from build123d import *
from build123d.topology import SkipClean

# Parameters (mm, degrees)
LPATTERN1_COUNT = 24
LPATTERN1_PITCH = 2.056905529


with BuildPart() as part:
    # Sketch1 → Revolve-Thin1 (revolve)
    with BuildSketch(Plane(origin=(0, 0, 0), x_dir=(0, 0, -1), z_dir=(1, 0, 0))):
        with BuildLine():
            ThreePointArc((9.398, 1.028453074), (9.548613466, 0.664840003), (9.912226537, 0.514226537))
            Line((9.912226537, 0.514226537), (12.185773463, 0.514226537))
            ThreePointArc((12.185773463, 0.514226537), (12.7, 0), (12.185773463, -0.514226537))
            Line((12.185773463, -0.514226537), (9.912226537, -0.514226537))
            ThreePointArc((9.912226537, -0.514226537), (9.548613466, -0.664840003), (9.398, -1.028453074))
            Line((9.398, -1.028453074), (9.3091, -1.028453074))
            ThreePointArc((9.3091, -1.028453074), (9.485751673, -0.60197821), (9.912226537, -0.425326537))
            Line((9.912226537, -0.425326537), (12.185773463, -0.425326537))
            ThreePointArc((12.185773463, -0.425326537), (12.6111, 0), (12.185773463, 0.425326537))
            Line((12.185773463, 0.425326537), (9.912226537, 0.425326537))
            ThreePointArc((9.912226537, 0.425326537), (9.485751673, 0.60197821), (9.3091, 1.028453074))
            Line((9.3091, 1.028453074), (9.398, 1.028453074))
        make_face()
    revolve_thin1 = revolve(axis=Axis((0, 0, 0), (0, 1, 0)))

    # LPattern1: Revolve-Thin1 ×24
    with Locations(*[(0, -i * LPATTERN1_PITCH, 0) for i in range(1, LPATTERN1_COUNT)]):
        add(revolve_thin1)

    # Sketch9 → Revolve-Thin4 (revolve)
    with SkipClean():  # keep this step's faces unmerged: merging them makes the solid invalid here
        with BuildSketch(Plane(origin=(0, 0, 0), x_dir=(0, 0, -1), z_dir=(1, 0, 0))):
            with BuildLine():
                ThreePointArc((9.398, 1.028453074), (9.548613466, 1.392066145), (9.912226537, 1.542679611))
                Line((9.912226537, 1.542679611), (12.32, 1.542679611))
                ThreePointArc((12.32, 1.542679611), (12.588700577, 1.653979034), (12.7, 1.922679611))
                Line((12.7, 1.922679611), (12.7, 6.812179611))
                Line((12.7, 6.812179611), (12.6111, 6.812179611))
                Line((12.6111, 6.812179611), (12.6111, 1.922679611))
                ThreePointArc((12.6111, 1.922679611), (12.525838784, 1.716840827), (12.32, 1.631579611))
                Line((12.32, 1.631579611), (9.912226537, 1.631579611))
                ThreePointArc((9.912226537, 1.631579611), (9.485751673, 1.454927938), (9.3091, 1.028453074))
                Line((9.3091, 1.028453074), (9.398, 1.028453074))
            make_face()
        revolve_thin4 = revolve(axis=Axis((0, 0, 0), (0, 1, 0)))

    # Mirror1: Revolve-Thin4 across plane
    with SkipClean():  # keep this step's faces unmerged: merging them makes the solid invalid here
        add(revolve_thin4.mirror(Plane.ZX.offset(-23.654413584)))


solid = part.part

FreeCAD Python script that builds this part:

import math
import FreeCAD as App
import Part
import Sketcher

doc = App.newDocument("Part")
params = doc.addObject("Spreadsheet::Sheet", "Params")
for row, (alias, value) in enumerate([
    ("revolution_angle", "360 deg"),
    ("linearpattern_pitch", "2.056906 mm"),
    ("sketch2_radius", "0.38 mm"),
    ("revolution2_angle", "360 deg"),
], start=1):
    params.set(f"A{row}", alias)
    params.set(f"B{row}", "=" + value)
    params.setAlias(f"B{row}", alias)

body = doc.addObject("PartDesign::Body", "Body")

# Sketch on YZ plane
sketch1 = doc.addObject("Sketcher::SketchObject", "Sketch")
body.addObject(sketch1)
sketch1.AttachmentSupport = (doc.YZ_Plane, [""])
sketch1.MapMode = "FlatFace"
sketch1.addGeometry([
    Part.ArcOfCircle(Part.Circle(App.Vector(1.03, -9.91, 0), App.Vector(0, 0, 1), 0.51), math.radians(90), math.radians(180)),  # 0
    Part.LineSegment(App.Vector(1.03, -9.4, 0), App.Vector(1.03, -9.31, 0)),  # 1
    Part.ArcOfCircle(Part.Circle(App.Vector(1.03, -9.91, 0), App.Vector(0, 0, 1), 0.6), math.radians(90), math.radians(180)),  # 2
    Part.LineSegment(App.Vector(0.43, -9.91, 0), App.Vector(0.43, -12.19, 0)),  # 3
    Part.ArcOfCircle(Part.Circle(App.Vector(0, -12.19, 0), App.Vector(0, 0, 1), 0.43), math.radians(180), math.radians(360)),  # 4
    Part.LineSegment(App.Vector(-0.43, -12.19, 0), App.Vector(-0.43, -9.91, 0)),  # 5
    Part.ArcOfCircle(Part.Circle(App.Vector(-1.03, -9.91, 0), App.Vector(0, 0, 1), 0.6), math.radians(0), math.radians(90)),  # 6
    Part.LineSegment(App.Vector(-1.03, -9.31, 0), App.Vector(-1.03, -9.4, 0)),  # 7
    Part.ArcOfCircle(Part.Circle(App.Vector(-1.03, -9.91, 0), App.Vector(0, 0, 1), 0.51), math.radians(0), math.radians(90)),  # 8
    Part.LineSegment(App.Vector(-0.51, -9.91, 0), App.Vector(-0.51, -12.19, 0)),  # 9
    Part.ArcOfCircle(Part.Circle(App.Vector(0, -12.19, 0), App.Vector(0, 0, 1), 0.51), math.radians(180), math.radians(360)),  # 10
    Part.LineSegment(App.Vector(0.51, -12.19, 0), App.Vector(0.51, -9.91, 0)),  # 11
], False)
sketch1.addConstraint([
    Sketcher.Constraint("Coincident", 0, 1, 1, 1),
    Sketcher.Constraint("Coincident", 1, 2, 2, 1),
    Sketcher.Constraint("Tangent", 2, 2, 3, 1),
    Sketcher.Constraint("Tangent", 3, 2, 4, 2),
    Sketcher.Constraint("Tangent", 4, 1, 5, 1),
    Sketcher.Constraint("Tangent", 5, 2, 6, 1),
    Sketcher.Constraint("Coincident", 6, 2, 7, 1),
    Sketcher.Constraint("Coincident", 7, 2, 8, 2),
    Sketcher.Constraint("Tangent", 8, 1, 9, 1),
    Sketcher.Constraint("Tangent", 9, 2, 10, 1),
    Sketcher.Constraint("Tangent", 10, 2, 11, 1),
    Sketcher.Constraint("Tangent", 11, 2, 0, 2),
    Sketcher.Constraint("Vertical", 1),
    Sketcher.Constraint("Vertical", 3),
    Sketcher.Constraint("Vertical", 5),
    Sketcher.Constraint("Vertical", 7),
    Sketcher.Constraint("Vertical", 9),
    Sketcher.Constraint("Vertical", 11),
    Sketcher.Constraint("Coincident", 2, 3, 0, 3),
    Sketcher.Constraint("Coincident", 8, 3, 6, 3),
    Sketcher.Constraint("Coincident", 10, 3, 4, 3),
    Sketcher.Constraint("Equal", 2, 6),
    Sketcher.Constraint("Equal", 8, 10),
    Sketcher.Constraint("Symmetric", 0, 3, 6, 3, -2),
    Sketcher.Constraint("Vertical", 2, 3, 0, 1),
    Sketcher.Constraint("Vertical", 8, 3, 6, 2),
    Sketcher.Constraint("DistanceY", 1, 1, 1, 2, 0.0889),
    Sketcher.Constraint("DistanceY", 0, 1, -1, 1, 9.398),
    Sketcher.Constraint("Radius", 0, 0.514227),
    Sketcher.Constraint("DistanceY", 3, 2, 3, 1, 2.273547),
])
revolution = doc.addObject("PartDesign::Revolution", "Revolution")
body.addObject(revolution)
revolution.Profile = sketch1
revolution.ReferenceAxis = (sketch1, ["H_Axis"])
revolution.setExpression("Angle", "Params.revolution_angle")
doc.recompute()

linearpattern = doc.addObject("PartDesign::LinearPattern", "LinearPattern")
body.addObject(linearpattern)
linearpattern.Originals = [revolution]
linearpattern.Direction = (doc.Y_Axis, [""])
linearpattern.Mode = "offset"
linearpattern.setExpression("Offset", "Params.linearpattern_pitch")
linearpattern.Occurrences = 24
linearpattern.Reversed = True
body.Tip = linearpattern

# Sketch on YZ plane
sketch2 = doc.addObject("Sketcher::SketchObject", "Sketch001")
body.addObject(sketch2)
sketch2.AttachmentSupport = (doc.YZ_Plane, [""])
sketch2.MapMode = "FlatFace"
sketch2.addGeometry([
    Part.ArcOfCircle(Part.Circle(App.Vector(1.03, -9.91, 0), App.Vector(0, 0, 1), 0.51), math.radians(0), math.radians(90)),  # 0
    Part.LineSegment(App.Vector(1.54, -9.91, 0), App.Vector(1.54, -12.32, 0)),  # 1
    Part.ArcOfCircle(Part.Circle(App.Vector(1.92, -12.32, 0), App.Vector(0, 0, 1), 0.38), math.radians(180), math.radians(270)),  # 2
    Part.LineSegment(App.Vector(1.92, -12.7, 0), App.Vector(6.81, -12.7, 0)),  # 3
    Part.LineSegment(App.Vector(6.81, -12.7, 0), App.Vector(6.81, -12.61, 0)),  # 4
    Part.LineSegment(App.Vector(6.81, -12.61, 0), App.Vector(1.92, -12.61, 0)),  # 5
    Part.ArcOfCircle(Part.Circle(App.Vector(1.92, -12.32, 0), App.Vector(0, 0, 1), 0.29), math.radians(180), math.radians(270)),  # 6
    Part.LineSegment(App.Vector(1.63, -12.32, 0), App.Vector(1.63, -9.91, 0)),  # 7
    Part.ArcOfCircle(Part.Circle(App.Vector(1.03, -9.91, 0), App.Vector(0, 0, 1), 0.6), math.radians(0), math.radians(90)),  # 8
    Part.LineSegment(App.Vector(1.03, -9.31, 0), App.Vector(1.03, -9.4, 0)),  # 9
], False)
sketch2.addConstraint([
    Sketcher.Constraint("Tangent", 0, 1, 1, 1),
    Sketcher.Constraint("Tangent", 1, 2, 2, 1),
    Sketcher.Constraint("Tangent", 2, 2, 3, 1),
    Sketcher.Constraint("Coincident", 3, 2, 4, 1),
    Sketcher.Constraint("Coincident", 4, 2, 5, 1),
    Sketcher.Constraint("Tangent", 5, 2, 6, 2),
    Sketcher.Constraint("Tangent", 6, 1, 7, 1),
    Sketcher.Constraint("Tangent", 7, 2, 8, 1),
    Sketcher.Constraint("Coincident", 8, 2, 9, 1),
    Sketcher.Constraint("Coincident", 9, 2, 0, 2),
    Sketcher.Constraint("Vertical", 1),
    Sketcher.Constraint("Horizontal", 3),
    Sketcher.Constraint("Vertical", 4),
    Sketcher.Constraint("Horizontal", 5),
    Sketcher.Constraint("Vertical", 7),
    Sketcher.Constraint("Vertical", 9),
    Sketcher.Constraint("Coincident", 6, 3, 2, 3),
    Sketcher.Constraint("Coincident", 8, 3, 0, 3),
    Sketcher.Constraint("Vertical", 0, 3, 8, 2),
    Sketcher.Constraint("Radius", 2, 0.38),
    Sketcher.Constraint("DistanceY", 2, 2, -1, 1, 12.7),
    Sketcher.Constraint("Radius", 6, 0.2911),
    Sketcher.Constraint("DistanceX", 3, 1, 3, 2, 4.8895),
    Sketcher.Constraint("DistanceY", 9, 2, -1, 1, 9.398),
    Sketcher.Constraint("Radius", 0, 0.514227),
    Sketcher.Constraint("DistanceX", -1, 1, 2, 3, 1.92268),
])
sketch2.setExpression("Constraints[19]", "Params.sketch2_radius")
revolution2 = doc.addObject("PartDesign::Revolution", "Revolution001")
body.addObject(revolution2)
revolution2.Profile = sketch2
revolution2.ReferenceAxis = (sketch2, ["H_Axis"])
revolution2.setExpression("Angle", "Params.revolution2_angle")
doc.recompute()

datumplane = doc.addObject("PartDesign::Plane", "DatumPlane")
body.addObject(datumplane)
datumplane.AttachmentSupport = (doc.XZ_Plane, [""])
datumplane.MapMode = "FlatFace"
datumplane.AttachmentOffset = App.Placement(App.Vector(0, 0, 23.654414), App.Rotation())
mirrored = doc.addObject("PartDesign::Mirrored", "Mirrored")
body.addObject(mirrored)
mirrored.Originals = [revolution2]
mirrored.MirrorPlane = (datumplane, [""])
body.Tip = mirrored

doc.recompute()
